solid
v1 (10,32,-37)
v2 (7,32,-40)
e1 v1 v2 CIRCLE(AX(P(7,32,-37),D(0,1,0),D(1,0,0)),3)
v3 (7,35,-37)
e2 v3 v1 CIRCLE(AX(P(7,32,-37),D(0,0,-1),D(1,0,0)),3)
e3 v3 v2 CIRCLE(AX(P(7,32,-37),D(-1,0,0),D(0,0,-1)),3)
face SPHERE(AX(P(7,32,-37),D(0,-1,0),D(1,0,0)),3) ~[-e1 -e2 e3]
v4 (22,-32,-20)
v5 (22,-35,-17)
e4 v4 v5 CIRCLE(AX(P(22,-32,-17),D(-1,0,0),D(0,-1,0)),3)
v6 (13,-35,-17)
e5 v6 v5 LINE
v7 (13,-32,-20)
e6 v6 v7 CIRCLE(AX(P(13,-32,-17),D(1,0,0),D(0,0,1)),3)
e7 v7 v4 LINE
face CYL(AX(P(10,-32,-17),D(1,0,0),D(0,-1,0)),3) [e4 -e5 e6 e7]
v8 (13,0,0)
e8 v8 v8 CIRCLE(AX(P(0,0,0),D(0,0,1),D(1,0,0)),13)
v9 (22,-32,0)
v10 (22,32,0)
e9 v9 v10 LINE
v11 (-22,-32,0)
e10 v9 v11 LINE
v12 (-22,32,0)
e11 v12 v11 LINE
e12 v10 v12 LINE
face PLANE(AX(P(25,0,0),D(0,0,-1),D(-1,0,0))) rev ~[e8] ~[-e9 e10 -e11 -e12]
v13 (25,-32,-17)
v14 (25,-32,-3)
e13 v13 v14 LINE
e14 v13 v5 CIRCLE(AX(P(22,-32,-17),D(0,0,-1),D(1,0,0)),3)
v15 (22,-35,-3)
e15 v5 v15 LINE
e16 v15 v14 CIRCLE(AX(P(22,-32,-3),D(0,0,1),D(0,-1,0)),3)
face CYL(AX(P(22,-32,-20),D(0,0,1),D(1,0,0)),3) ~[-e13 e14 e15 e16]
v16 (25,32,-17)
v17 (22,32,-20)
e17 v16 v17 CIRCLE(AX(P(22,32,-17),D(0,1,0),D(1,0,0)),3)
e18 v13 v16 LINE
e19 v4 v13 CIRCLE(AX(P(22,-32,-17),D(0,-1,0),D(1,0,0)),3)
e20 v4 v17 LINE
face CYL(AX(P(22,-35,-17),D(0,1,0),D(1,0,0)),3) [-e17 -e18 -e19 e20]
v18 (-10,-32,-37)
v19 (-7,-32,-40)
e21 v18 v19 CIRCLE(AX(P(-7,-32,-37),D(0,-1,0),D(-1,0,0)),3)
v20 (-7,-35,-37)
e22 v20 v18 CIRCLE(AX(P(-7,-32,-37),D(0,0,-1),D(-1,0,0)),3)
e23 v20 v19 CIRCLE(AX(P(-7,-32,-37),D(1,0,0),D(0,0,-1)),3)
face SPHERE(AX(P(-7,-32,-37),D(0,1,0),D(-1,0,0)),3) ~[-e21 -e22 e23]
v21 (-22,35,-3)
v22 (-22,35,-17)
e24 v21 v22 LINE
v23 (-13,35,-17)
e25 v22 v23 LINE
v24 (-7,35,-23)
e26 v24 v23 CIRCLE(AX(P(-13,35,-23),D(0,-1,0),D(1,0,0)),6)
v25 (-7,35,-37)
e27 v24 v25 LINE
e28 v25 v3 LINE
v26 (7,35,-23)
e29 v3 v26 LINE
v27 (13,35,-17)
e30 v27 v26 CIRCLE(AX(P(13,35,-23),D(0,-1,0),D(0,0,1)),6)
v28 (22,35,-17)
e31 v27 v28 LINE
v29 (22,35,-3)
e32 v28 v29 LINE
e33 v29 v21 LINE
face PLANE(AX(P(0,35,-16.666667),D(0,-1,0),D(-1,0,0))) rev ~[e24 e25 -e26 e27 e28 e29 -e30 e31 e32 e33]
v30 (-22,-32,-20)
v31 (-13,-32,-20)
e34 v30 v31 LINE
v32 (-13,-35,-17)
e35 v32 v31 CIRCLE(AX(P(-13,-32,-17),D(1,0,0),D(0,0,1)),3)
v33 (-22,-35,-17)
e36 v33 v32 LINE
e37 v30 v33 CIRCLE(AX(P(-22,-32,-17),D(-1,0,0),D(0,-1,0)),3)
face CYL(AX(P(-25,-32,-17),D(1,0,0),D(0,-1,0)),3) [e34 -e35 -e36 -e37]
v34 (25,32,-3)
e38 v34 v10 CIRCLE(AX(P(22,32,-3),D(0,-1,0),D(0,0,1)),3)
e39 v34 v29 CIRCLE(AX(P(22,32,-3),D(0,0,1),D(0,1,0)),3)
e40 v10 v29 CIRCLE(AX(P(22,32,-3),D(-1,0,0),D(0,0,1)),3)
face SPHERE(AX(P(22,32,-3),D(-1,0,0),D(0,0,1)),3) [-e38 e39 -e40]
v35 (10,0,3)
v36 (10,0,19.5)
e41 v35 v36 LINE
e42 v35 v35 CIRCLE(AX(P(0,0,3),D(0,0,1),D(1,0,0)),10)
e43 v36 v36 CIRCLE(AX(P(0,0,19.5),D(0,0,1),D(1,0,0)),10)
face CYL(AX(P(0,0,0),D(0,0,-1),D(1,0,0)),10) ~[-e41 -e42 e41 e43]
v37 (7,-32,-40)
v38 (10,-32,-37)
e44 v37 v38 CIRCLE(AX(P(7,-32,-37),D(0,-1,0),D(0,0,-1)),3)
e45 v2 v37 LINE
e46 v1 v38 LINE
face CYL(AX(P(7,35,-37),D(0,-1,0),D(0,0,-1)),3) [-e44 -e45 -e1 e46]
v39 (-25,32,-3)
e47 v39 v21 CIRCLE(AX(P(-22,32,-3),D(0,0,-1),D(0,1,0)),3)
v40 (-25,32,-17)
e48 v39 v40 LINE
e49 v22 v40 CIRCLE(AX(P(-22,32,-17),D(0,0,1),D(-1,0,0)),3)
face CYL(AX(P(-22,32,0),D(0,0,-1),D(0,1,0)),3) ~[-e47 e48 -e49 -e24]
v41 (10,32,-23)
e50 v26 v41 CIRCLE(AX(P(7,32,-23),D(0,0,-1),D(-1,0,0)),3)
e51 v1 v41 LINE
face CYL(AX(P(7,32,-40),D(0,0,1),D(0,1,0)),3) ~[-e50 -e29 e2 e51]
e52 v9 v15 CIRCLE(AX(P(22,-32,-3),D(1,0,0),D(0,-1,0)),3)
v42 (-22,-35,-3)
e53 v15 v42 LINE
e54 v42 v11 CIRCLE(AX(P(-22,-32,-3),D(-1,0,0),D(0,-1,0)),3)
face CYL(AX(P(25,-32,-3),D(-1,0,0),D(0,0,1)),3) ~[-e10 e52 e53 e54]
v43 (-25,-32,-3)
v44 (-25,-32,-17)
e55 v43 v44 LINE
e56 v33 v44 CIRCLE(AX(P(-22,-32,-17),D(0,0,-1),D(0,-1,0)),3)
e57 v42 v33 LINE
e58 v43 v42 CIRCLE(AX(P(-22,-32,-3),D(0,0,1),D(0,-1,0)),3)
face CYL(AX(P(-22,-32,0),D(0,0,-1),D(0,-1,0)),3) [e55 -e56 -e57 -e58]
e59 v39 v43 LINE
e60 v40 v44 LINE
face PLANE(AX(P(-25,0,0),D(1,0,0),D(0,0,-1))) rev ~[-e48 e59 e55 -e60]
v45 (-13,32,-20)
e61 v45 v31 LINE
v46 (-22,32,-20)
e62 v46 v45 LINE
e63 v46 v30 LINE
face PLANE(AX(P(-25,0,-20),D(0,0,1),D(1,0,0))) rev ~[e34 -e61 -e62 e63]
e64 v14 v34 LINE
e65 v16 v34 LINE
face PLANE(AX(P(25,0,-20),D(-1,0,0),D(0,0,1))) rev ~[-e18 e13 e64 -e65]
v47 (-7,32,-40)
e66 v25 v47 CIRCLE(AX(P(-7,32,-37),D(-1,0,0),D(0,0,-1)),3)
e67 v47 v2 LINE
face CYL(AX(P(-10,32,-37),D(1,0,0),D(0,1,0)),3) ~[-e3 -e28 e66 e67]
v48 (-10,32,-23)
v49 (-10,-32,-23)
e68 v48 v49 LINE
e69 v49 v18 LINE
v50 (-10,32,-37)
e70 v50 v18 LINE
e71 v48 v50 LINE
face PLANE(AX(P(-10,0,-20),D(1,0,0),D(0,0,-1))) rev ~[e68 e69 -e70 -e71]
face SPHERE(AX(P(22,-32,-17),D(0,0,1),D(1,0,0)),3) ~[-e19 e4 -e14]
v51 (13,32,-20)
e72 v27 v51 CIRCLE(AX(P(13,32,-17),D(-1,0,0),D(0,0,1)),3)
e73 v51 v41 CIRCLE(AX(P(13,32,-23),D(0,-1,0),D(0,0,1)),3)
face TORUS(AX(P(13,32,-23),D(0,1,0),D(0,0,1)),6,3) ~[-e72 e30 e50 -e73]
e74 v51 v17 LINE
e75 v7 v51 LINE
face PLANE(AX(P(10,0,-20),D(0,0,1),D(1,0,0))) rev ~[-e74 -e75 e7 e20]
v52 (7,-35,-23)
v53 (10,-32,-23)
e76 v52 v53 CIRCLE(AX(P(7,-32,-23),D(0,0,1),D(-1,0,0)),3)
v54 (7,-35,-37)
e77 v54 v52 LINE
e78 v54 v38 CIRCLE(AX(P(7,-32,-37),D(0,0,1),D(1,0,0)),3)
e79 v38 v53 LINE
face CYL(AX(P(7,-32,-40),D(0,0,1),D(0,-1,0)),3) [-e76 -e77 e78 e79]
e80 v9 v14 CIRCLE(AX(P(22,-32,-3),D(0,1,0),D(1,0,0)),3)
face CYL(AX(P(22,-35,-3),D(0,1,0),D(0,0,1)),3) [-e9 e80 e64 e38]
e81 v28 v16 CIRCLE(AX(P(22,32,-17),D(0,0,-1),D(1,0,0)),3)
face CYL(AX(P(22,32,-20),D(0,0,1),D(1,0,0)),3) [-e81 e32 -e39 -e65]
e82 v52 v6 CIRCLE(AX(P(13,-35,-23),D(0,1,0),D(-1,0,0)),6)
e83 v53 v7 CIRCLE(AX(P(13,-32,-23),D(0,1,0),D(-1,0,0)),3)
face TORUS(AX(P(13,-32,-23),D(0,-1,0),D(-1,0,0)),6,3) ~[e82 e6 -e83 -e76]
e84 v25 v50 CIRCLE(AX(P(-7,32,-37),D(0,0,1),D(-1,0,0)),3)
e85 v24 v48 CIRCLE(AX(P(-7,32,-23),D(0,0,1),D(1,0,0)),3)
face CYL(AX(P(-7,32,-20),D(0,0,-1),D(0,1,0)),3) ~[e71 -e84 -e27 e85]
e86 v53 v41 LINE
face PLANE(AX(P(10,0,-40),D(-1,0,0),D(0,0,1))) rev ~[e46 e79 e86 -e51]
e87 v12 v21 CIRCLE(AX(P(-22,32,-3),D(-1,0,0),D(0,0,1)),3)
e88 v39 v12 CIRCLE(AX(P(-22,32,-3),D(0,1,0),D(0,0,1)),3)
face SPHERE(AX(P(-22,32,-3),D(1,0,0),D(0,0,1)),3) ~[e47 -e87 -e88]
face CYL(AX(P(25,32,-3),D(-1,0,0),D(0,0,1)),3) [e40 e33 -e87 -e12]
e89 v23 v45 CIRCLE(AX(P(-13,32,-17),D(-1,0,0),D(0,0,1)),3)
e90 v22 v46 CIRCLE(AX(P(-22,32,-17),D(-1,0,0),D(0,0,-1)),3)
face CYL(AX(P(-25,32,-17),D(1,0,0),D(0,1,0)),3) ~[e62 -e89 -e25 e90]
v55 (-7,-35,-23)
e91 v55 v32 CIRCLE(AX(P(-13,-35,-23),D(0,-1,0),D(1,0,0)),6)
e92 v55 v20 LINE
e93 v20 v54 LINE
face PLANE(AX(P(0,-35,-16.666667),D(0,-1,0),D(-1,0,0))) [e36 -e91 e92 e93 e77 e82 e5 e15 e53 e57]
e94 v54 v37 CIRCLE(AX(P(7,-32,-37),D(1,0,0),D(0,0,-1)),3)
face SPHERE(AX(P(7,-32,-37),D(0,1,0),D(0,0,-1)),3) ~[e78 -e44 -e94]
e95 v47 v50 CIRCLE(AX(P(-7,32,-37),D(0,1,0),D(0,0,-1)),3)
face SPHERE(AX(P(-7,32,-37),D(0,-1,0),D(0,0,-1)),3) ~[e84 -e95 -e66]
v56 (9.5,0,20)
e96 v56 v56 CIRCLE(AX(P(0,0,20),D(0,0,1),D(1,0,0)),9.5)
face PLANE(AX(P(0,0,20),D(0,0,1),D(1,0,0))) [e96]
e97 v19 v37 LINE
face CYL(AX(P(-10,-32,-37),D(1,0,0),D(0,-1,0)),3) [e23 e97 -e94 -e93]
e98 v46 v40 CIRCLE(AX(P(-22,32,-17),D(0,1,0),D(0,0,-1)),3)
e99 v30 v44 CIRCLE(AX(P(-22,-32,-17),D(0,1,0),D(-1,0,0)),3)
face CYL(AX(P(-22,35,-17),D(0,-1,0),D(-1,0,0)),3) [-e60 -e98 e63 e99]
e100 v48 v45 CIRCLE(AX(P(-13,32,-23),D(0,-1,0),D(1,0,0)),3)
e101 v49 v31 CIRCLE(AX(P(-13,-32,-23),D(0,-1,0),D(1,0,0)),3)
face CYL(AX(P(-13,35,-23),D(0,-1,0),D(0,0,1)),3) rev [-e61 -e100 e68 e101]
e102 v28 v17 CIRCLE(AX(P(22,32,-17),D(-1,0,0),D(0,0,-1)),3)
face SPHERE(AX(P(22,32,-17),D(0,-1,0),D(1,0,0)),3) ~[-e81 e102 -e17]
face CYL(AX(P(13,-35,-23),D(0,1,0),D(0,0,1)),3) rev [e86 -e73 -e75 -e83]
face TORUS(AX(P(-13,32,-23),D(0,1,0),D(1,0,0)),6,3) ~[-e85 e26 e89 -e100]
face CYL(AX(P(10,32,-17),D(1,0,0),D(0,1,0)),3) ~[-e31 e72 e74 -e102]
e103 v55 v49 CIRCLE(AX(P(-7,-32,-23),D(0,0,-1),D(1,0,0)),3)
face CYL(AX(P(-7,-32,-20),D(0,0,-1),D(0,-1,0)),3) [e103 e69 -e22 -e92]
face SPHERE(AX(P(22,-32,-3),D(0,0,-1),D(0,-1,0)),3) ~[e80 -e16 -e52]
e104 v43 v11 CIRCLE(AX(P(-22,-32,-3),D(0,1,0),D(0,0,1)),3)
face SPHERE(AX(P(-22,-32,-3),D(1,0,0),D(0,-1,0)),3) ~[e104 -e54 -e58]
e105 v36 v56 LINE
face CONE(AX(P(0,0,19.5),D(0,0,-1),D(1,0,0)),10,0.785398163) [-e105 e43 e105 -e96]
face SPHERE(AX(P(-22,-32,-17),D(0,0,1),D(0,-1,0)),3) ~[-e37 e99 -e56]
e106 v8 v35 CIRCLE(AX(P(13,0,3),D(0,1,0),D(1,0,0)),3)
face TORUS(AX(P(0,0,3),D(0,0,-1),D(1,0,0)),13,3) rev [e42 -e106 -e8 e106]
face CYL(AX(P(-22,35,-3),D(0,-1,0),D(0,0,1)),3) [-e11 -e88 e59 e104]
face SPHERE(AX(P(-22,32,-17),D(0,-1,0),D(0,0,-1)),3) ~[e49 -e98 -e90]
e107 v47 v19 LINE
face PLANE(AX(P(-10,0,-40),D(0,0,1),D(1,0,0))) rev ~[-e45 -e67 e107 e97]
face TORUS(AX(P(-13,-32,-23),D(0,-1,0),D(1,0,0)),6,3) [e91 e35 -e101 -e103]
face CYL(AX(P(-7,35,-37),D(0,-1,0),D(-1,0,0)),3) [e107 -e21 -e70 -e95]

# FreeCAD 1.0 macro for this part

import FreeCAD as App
import Part
import Sketcher

V = App.Vector


def edges_at(feature, points):
    """Names of the edges that pass closest to the given points."""
    edges = feature.Shape.Edges
    near = lambda p: min(range(len(edges)), key=lambda i: edges[i].distToShape(Part.Vertex(*p))[0])
    return sorted({f"Edge{near(p) + 1}" for p in points})

doc = App.newDocument("Part")
body = doc.addObject("PartDesign::Body", "Body")

# Sketch on XZ plane
sketch1 = body.newObject("Sketcher::SketchObject", "Sketch")
sketch1.AttachmentSupport = (doc.getObject("XZ_Plane"), [""])
sketch1.MapMode = "FlatFace"
sketch1.addGeometry([
    Part.LineSegment(V(-25, 0, 0), V(25, 0, 0)),  # 0
    Part.LineSegment(V(25, 0, 0), V(25, -20, 0)),  # 1
    Part.LineSegment(V(25, -20, 0), V(10, -20, 0)),  # 2
    Part.LineSegment(V(10, -20, 0), V(10, -40, 0)),  # 3
    Part.LineSegment(V(10, -40, 0), V(-10, -40, 0)),  # 4
    Part.LineSegment(V(-10, -40, 0), V(-10, -20, 0)),  # 5
    Part.LineSegment(V(-10, -20, 0), V(-25, -20, 0)),  # 6
    Part.LineSegment(V(-25, -20, 0), V(-25, 0, 0)),  # 7
], False)
sketch1.addConstraint([
    Sketcher.Constraint("Coincident", 0, 2, 1, 1),
    Sketcher.Constraint("Coincident", 1, 2, 2, 1),
    Sketcher.Constraint("Coincident", 2, 2, 3, 1),
    Sketcher.Constraint("Coincident", 3, 2, 4, 1),
    Sketcher.Constraint("Coincident", 4, 2, 5, 1),
    Sketcher.Constraint("Coincident", 5, 2, 6, 1),
    Sketcher.Constraint("Coincident", 6, 2, 7, 1),
    Sketcher.Constraint("Coincident", 7, 2, 0, 1),
    Sketcher.Constraint("Horizontal", 0),
    Sketcher.Constraint("Vertical", 1),
    Sketcher.Constraint("Horizontal", 2),
    Sketcher.Constraint("Vertical", 3),
    Sketcher.Constraint("Horizontal", 4),
    Sketcher.Constraint("Vertical", 5),
    Sketcher.Constraint("Horizontal", 6),
    Sketcher.Constraint("Vertical", 7),
    Sketcher.Constraint("Symmetric", 0, 2, 7, 2, -1, 1),
    Sketcher.Constraint("Symmetric", 2, 2, 5, 2, -2),
    Sketcher.Constraint("Equal", 4, 1),
    Sketcher.Constraint("Equal", 1, 3),
    Sketcher.Constraint("DistanceX", 0, 1, 0, 2, 50.0),
    Sketcher.Constraint("DistanceX", 2, 2, 2, 1, 15.0),
])
pad1 = body.newObject("PartDesign::Pad", "Pad")
pad1.Profile = sketch1
pad1.Length = 70
pad1.Midplane = True

# Sketch on XY plane
sketch2 = body.newObject("Sketcher::SketchObject", "Sketch001")
sketch2.AttachmentSupport = (doc.getObject("XY_Plane"), [""])
sketch2.MapMode = "FlatFace"
sketch2.addGeometry(Part.Circle(V(0, 0, 0), V(0, 0, 1), 10), False)
sketch2.addConstraint([
    Sketcher.Constraint("Coincident", 0, 3, -1, 1),
    Sketcher.Constraint("Diameter", 0, 20.0),
])
pad2 = body.newObject("PartDesign::Pad", "Pad001")
pad2.Profile = sketch2
pad2.Length = 20
doc.recompute()

fillet = body.newObject("PartDesign::Fillet", "Fillet")
fillet.Base = (pad2, edges_at(pad2, [
    (25, -35, -10),
    (0, -35, 0),
    (-25, -35, -10),
    (-17.5, -35, -20),
    (0, 35, 0),
    (-10, 0, -20),
    (-10, 0, -40),
    (10, 0, -40),
    (10, 0, -20),
    (25, 0, -20),
    (25, 0, 0),
    (-25, 0, 0),
    (-25, 0, -20),
    (25, 35, -10),
    (17.5, 35, -20),
    (-10, 0, 0),
    (10, 35, -30),
    (0, 35, -40),
    (-10, 35, -30),
    (-17.5, 35, -20),
    (-10, -35, -30),
    (-25, 35, -10),
    (0, -35, -40),
    (10, -35, -30),
    (17.5, -35, -20),
]))
fillet.Radius = 3
doc.recompute()

chamfer = body.newObject("PartDesign::Chamfer", "Chamfer")
chamfer.Base = (fillet, edges_at(fillet, [(-10, 0, 20)]))
chamfer.Size = 0.5

doc.recompute()
